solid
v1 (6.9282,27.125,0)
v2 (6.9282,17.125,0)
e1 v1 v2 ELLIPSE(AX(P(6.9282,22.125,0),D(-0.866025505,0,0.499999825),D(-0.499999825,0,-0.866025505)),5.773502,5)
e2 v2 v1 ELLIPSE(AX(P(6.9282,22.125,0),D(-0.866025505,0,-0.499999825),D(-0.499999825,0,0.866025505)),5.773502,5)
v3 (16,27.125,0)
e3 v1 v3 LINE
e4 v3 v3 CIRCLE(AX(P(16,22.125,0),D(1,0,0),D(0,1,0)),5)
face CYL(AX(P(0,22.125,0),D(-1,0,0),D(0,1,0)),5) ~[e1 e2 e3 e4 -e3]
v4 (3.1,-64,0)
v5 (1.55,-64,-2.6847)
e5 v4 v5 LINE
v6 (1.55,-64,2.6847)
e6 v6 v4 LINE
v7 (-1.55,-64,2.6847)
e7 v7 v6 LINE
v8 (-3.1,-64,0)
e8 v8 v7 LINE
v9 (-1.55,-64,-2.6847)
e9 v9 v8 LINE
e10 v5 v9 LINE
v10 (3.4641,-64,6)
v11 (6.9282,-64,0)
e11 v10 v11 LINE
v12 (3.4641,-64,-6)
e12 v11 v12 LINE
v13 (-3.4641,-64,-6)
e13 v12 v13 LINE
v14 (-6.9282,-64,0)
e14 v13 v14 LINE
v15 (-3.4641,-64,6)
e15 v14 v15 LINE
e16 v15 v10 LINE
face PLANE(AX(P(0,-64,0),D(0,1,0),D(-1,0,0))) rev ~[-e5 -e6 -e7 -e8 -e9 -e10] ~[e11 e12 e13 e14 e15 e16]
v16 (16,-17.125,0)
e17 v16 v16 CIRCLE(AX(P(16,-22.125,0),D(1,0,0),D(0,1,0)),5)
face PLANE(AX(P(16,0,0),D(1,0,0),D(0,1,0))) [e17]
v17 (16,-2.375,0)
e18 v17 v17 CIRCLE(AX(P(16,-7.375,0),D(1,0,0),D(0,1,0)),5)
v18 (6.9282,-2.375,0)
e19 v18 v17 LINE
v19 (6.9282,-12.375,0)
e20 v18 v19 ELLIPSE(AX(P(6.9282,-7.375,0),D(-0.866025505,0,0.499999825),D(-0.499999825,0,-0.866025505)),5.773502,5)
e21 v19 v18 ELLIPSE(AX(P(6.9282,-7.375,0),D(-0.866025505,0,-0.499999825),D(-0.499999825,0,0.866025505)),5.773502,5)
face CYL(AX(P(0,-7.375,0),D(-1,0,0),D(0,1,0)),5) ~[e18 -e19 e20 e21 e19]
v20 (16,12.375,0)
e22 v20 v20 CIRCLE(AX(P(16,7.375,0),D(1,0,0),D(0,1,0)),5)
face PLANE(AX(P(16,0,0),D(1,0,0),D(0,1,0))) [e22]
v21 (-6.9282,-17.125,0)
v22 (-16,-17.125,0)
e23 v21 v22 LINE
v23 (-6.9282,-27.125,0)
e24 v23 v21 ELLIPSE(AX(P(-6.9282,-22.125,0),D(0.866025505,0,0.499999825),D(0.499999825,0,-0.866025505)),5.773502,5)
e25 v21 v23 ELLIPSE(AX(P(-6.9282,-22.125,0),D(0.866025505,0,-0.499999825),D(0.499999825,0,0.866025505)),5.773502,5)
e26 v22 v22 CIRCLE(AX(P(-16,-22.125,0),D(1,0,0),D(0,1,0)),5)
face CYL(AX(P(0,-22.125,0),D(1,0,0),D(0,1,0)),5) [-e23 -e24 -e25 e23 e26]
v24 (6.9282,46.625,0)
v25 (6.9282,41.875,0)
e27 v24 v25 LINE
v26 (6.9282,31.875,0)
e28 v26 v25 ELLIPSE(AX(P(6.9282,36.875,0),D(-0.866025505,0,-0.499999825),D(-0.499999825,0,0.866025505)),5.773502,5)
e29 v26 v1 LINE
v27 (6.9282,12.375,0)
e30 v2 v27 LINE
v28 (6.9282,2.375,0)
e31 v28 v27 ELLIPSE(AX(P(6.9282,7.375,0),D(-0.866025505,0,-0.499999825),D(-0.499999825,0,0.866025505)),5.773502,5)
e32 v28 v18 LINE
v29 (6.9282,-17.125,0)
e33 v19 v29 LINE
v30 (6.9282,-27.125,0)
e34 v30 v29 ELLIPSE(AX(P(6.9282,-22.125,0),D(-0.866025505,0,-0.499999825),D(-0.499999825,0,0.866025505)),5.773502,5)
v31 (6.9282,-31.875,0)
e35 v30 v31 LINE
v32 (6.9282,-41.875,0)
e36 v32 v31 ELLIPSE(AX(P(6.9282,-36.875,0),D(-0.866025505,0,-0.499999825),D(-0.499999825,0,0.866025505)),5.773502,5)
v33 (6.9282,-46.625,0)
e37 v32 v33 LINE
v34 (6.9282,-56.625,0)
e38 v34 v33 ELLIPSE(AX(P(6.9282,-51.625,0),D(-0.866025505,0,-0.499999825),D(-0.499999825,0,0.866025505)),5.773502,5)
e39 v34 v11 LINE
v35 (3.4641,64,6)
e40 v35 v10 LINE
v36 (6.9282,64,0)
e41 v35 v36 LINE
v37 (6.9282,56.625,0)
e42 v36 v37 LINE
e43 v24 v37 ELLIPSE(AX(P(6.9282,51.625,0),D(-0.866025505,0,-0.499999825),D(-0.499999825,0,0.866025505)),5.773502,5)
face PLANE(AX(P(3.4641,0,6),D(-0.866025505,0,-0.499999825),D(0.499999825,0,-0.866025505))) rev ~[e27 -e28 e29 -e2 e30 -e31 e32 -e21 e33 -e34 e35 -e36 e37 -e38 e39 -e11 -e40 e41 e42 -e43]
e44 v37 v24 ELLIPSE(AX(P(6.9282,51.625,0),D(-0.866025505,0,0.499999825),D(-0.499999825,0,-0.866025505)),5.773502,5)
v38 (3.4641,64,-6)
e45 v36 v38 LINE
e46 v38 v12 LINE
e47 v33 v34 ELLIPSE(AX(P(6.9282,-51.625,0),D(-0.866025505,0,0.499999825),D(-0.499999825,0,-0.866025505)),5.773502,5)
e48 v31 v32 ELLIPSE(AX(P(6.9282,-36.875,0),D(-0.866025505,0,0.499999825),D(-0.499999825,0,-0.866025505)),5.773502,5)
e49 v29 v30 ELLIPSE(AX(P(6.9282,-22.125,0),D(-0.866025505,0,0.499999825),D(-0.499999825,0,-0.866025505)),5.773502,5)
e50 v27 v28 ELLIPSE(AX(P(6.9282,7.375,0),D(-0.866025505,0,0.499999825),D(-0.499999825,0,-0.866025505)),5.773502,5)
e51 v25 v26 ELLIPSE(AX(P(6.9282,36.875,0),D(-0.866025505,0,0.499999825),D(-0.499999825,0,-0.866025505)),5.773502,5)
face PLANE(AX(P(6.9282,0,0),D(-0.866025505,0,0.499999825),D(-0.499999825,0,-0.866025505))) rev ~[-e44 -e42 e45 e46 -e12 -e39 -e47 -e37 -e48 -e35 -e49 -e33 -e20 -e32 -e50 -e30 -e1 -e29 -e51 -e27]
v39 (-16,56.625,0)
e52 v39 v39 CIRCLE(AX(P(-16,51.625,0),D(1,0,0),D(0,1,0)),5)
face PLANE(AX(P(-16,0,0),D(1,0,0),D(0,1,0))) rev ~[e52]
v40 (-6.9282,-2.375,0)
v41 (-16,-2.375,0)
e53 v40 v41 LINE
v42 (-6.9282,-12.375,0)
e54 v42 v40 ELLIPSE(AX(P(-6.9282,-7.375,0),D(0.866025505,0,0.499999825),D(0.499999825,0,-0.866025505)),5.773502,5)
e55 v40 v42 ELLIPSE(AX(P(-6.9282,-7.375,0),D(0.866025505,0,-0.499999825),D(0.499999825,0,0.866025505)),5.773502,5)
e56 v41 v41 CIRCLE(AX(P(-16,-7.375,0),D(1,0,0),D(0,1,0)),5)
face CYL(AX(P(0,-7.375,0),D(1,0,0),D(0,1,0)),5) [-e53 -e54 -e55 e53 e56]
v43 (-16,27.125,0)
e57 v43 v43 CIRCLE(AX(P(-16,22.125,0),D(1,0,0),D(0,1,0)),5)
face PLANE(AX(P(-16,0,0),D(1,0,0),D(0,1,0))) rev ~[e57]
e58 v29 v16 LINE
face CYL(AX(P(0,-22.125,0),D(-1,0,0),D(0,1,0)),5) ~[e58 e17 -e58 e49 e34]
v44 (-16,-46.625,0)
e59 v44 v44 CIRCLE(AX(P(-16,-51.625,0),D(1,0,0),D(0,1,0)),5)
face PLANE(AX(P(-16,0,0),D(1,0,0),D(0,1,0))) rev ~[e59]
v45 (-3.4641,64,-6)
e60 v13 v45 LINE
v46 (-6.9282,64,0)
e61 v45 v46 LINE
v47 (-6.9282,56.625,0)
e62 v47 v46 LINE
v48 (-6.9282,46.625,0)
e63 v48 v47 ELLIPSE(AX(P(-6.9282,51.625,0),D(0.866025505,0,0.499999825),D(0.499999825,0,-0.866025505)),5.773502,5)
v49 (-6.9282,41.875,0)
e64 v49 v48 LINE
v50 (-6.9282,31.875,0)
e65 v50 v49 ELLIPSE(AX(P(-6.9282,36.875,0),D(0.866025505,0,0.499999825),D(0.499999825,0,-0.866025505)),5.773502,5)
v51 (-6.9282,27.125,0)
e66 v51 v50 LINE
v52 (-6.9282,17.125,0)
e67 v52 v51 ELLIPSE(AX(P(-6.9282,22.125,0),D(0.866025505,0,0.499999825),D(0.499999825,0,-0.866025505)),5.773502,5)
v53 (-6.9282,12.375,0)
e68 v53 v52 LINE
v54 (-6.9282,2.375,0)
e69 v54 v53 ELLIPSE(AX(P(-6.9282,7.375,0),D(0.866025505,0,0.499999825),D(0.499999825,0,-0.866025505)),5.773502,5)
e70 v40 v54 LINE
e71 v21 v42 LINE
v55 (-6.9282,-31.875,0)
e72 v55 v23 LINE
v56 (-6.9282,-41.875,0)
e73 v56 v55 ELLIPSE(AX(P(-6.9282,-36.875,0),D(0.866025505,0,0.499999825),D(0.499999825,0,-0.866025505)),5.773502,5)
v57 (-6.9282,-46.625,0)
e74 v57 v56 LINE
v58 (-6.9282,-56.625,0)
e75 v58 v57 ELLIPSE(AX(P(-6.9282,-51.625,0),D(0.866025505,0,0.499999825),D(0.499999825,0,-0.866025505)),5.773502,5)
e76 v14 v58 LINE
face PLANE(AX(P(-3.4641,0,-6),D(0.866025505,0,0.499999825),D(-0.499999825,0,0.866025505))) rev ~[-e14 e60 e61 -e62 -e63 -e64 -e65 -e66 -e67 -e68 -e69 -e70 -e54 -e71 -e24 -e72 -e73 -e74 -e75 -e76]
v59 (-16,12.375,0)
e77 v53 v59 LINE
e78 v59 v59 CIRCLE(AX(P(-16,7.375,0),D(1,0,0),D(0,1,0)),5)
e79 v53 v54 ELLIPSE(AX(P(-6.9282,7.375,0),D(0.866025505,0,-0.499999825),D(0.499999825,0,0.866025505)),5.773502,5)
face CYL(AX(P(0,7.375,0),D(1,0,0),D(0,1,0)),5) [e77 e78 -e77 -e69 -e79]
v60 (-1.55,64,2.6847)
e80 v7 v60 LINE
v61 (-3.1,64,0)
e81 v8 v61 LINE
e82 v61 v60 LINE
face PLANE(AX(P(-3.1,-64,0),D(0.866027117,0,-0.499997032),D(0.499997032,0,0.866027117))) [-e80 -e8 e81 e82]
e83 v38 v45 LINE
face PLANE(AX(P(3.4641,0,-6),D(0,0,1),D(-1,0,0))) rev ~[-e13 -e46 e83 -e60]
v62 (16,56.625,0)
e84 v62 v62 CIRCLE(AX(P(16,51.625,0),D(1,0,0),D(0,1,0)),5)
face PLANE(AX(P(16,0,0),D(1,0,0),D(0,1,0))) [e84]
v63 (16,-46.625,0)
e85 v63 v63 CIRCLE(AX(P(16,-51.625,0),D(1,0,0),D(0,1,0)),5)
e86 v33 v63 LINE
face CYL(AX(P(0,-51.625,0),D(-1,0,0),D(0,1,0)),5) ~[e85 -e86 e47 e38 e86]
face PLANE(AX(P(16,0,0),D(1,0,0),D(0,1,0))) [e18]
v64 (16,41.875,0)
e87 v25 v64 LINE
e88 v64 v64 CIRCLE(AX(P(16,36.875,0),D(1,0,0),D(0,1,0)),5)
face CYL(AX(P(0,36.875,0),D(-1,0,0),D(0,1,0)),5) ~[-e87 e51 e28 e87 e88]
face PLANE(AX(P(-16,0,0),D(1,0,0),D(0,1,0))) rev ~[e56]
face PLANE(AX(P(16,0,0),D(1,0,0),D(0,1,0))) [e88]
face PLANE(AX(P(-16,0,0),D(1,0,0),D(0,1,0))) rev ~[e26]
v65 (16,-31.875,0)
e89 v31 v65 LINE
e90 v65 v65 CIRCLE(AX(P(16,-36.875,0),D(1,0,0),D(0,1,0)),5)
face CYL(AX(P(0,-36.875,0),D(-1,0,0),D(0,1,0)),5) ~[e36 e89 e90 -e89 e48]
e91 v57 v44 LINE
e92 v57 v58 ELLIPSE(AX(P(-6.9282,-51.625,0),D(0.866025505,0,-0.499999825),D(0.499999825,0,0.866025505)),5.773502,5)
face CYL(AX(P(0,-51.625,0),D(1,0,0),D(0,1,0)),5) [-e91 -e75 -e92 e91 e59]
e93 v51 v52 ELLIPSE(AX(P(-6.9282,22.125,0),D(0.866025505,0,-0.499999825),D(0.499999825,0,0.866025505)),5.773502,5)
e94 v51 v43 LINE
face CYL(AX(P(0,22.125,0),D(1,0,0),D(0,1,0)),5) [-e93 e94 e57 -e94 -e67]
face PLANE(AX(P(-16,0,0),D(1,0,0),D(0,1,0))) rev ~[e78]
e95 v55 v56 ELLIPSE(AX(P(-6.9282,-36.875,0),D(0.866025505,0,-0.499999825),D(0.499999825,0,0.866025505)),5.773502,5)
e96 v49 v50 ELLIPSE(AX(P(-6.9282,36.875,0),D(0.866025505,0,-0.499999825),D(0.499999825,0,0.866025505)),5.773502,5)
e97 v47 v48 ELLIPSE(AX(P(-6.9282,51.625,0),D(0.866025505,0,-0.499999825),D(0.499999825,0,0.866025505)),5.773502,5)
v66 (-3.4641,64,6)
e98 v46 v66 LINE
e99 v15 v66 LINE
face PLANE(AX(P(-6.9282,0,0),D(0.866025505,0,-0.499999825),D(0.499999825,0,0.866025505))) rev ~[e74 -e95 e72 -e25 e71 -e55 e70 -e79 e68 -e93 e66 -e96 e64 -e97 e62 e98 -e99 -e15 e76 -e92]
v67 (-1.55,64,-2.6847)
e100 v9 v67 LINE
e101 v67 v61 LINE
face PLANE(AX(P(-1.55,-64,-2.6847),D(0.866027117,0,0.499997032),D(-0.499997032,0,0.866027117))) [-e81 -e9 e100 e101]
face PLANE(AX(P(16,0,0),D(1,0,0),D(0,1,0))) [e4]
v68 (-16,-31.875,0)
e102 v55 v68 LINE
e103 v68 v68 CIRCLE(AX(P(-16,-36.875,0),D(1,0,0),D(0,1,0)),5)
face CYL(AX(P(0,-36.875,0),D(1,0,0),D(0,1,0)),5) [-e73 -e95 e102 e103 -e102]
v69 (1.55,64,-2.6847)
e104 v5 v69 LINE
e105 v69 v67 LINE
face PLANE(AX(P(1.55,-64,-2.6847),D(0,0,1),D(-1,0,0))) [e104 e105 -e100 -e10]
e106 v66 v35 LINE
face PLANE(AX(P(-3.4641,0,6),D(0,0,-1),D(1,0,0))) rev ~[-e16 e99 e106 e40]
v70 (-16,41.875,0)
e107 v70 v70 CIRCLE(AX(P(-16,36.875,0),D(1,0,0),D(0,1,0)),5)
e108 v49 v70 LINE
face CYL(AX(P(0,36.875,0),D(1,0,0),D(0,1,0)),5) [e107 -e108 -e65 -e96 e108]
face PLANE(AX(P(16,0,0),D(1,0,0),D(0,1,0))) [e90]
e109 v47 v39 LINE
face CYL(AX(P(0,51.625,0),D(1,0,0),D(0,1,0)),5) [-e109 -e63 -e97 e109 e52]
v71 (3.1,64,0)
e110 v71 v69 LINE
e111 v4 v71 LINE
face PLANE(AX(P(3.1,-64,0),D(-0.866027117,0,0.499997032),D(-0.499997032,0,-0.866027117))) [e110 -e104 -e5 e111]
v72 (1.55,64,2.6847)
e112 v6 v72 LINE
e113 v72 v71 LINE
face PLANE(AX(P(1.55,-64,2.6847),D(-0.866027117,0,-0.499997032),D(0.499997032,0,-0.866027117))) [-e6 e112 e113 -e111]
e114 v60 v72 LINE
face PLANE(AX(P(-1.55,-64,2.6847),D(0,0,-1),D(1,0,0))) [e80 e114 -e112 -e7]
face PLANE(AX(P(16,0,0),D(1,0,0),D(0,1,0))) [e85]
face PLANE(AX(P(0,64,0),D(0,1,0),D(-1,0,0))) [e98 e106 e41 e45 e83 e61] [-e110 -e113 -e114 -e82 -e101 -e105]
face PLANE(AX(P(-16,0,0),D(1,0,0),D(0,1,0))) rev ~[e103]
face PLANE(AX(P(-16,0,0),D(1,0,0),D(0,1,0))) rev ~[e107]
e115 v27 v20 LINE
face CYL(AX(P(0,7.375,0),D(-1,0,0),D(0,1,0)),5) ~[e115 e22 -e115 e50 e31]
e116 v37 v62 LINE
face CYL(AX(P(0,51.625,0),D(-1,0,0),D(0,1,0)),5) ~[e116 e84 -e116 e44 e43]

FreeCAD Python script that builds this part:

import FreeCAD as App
import Part
import Sketcher
from FreeCAD import Vector
Q = App.Units.Quantity

doc = App.newDocument("Part")
body = doc.addObject("PartDesign::Body", "Body")

# Sketch on XZ plane
sketch1 = doc.addObject("Sketcher::SketchObject", "Sketch")
body.addObject(sketch1)
sketch1.AttachmentSupport = (doc.XZ_Plane, [""])
sketch1.MapMode = "FlatFace"
sketch1.addGeometry([
    Part.LineSegment(Vector(3, -6, 0), Vector(-3, -6, 0)),  # 0
    Part.LineSegment(Vector(-3, -6, 0), Vector(-7, 0, 0)),  # 1
    Part.LineSegment(Vector(-7, 0, 0), Vector(-3, 6, 0)),  # 2
    Part.LineSegment(Vector(-3, 6, 0), Vector(3, 6, 0)),  # 3
    Part.LineSegment(Vector(3, 6, 0), Vector(7, 0, 0)),  # 4
    Part.LineSegment(Vector(7, 0, 0), Vector(3, -6, 0)),  # 5
], False)
sketch1.addConstraint([
    Sketcher.Constraint("Coincident", 0, 2, 1, 1),
    Sketcher.Constraint("Coincident", 1, 2, 2, 1),
    Sketcher.Constraint("Coincident", 2, 2, 3, 1),
    Sketcher.Constraint("Coincident", 3, 2, 4, 1),
    Sketcher.Constraint("Coincident", 4, 2, 5, 1),
    Sketcher.Constraint("Coincident", 5, 2, 0, 1),
    Sketcher.Constraint("Horizontal", 0),
    Sketcher.Constraint("Horizontal", 3),
    Sketcher.Constraint("Symmetric", 0, 2, 3, 2, -1, 1),
    Sketcher.Constraint("Symmetric", 1, 2, 4, 2, -1, 1),
    Sketcher.Constraint("PointOnObject", 1, 2, -1),
    Sketcher.Constraint("Parallel", 2, 5),
    Sketcher.Constraint("Vertical", 0, 2, 2, 2),
    Sketcher.Constraint("Angle", 1, Q("120 deg")),
    Sketcher.Constraint("DistanceY", 0, 2, 2, 2, 12.0),
    Sketcher.Constraint("DistanceX", 0, 2, 0, 1, 6.9282),
])
pad1 = doc.addObject("PartDesign::Pad", "Pad")
body.addObject(pad1)
pad1.Profile = sketch1
pad1.Length = 128
pad1.Midplane = True

# Sketch on YZ plane
sketch2 = doc.addObject("Sketcher::SketchObject", "Sketch001")
body.addObject(sketch2)
sketch2.AttachmentSupport = (doc.YZ_Plane, [""])
sketch2.MapMode = "FlatFace"
sketch2.addGeometry([
    Part.Circle(Vector(-7, 0, 0), Vector(0, 0, 1), 5),  # 0
    Part.Circle(Vector(7, 0, 0), Vector(0, 0, 1), 5),  # 1
    Part.Circle(Vector(22, 0, 0), Vector(0, 0, 1), 5),  # 2
    Part.Circle(Vector(37, 0, 0), Vector(0, 0, 1), 5),  # 3
    Part.Circle(Vector(-22, 0, 0), Vector(0, 0, 1), 5),  # 4
    Part.Circle(Vector(-37, 0, 0), Vector(0, 0, 1), 5),  # 5
    Part.Circle(Vector(-52, 0, 0), Vector(0, 0, 1), 5),  # 6
    Part.Circle(Vector(52, 0, 0), Vector(0, 0, 1), 5),  # 7
], False)
sketch2.addConstraint([
    Sketcher.Constraint("Equal", 0, 1),
    Sketcher.Constraint("Equal", 1, 2),
    Sketcher.Constraint("Equal", 2, 3),
    Sketcher.Constraint("Equal", 3, 4),
    Sketcher.Constraint("Equal", 4, 5),
    Sketcher.Constraint("Equal", 5, 6),
    Sketcher.Constraint("Equal", 6, 7),
    Sketcher.Constraint("Symmetric", 0, 3, 1, 3, -1, 1),
    Sketcher.Constraint("Symmetric", 2, 3, 4, 3, -1, 1),
    Sketcher.Constraint("Symmetric", 3, 3, 5, 3, -1, 1),
    Sketcher.Constraint("Symmetric", 6, 3, 7, 3, -1, 1),
    Sketcher.Constraint("PointOnObject", 0, 3, -1),
    Sketcher.Constraint("PointOnObject", 2, 3, -1),
    Sketcher.Constraint("PointOnObject", 3, 3, -1),
    Sketcher.Constraint("PointOnObject", 6, 3, -1),
    Sketcher.Constraint("Diameter", 0, 10.0),
    Sketcher.Constraint("DistanceX", 0, 3, 1, 3, 14.75),
    Sketcher.Constraint("DistanceX", 1, 3, 2, 3, 14.75),
    Sketcher.Constraint("DistanceX", 2, 3, 3, 3, 14.75),
    Sketcher.Constraint("DistanceX", 6, 3, 5, 3, 14.75),
])
pad2 = doc.addObject("PartDesign::Pad", "Pad001")
body.addObject(pad2)
pad2.Profile = sketch2
pad2.Length = 32
pad2.Midplane = True

# Sketch on XZ plane
sketch3 = doc.addObject("Sketcher::SketchObject", "Sketch002")
body.addObject(sketch3)
sketch3.AttachmentSupport = (doc.XZ_Plane, [""])
sketch3.MapMode = "FlatFace"
sketch3.AttachmentOffset = App.Placement(Vector(0, 0, 64), App.Rotation())
sketch3.addGeometry([
    Part.LineSegment(Vector(-1.6, -2.7, 0), Vector(1.6, -2.7, 0)),  # 0
    Part.LineSegment(Vector(1.6, -2.7, 0), Vector(3.1, 0, 0)),  # 1
    Part.LineSegment(Vector(3.1, 0, 0), Vector(1.6, 2.7, 0)),  # 2
    Part.LineSegment(Vector(1.6, 2.7, 0), Vector(-1.6, 2.7, 0)),  # 3
    Part.LineSegment(Vector(-1.6, 2.7, 0), Vector(-3.1, 0, 0)),  # 4
    Part.LineSegment(Vector(-3.1, 0, 0), Vector(-1.6, -2.7, 0)),  # 5
], False)
sketch3.addConstraint([
    Sketcher.Constraint("Coincident", 0, 2, 1, 1),
    Sketcher.Constraint("Coincident", 1, 2, 2, 1),
    Sketcher.Constraint("Coincident", 2, 2, 3, 1),
    Sketcher.Constraint("Coincident", 3, 2, 4, 1),
    Sketcher.Constraint("Coincident", 4, 2, 5, 1),
    Sketcher.Constraint("Coincident", 5, 2, 0, 1),
    Sketcher.Constraint("Horizontal", 0),
    Sketcher.Constraint("Horizontal", 3),
    Sketcher.Constraint("Symmetric", 0, 2, 3, 2, -1, 1),
    Sketcher.Constraint("Symmetric", 1, 2, 4, 2, -1, 1),
    Sketcher.Constraint("PointOnObject", 1, 2, -1),
    Sketcher.Constraint("Parallel", 2, 5),
    Sketcher.Constraint("Vertical", 0, 2, 2, 2),
    Sketcher.Constraint("Angle", 2, Q("119.9998 deg")),
    Sketcher.Constraint("DistanceX", 0, 1, 0, 2, 3.1),
    Sketcher.Constraint("Distance", 1, 3.1),
])
pocket1 = doc.addObject("PartDesign::Pocket", "Pocket")
body.addObject(pocket1)
pocket1.Profile = sketch3
pocket1.Length = 128

doc.recompute()
